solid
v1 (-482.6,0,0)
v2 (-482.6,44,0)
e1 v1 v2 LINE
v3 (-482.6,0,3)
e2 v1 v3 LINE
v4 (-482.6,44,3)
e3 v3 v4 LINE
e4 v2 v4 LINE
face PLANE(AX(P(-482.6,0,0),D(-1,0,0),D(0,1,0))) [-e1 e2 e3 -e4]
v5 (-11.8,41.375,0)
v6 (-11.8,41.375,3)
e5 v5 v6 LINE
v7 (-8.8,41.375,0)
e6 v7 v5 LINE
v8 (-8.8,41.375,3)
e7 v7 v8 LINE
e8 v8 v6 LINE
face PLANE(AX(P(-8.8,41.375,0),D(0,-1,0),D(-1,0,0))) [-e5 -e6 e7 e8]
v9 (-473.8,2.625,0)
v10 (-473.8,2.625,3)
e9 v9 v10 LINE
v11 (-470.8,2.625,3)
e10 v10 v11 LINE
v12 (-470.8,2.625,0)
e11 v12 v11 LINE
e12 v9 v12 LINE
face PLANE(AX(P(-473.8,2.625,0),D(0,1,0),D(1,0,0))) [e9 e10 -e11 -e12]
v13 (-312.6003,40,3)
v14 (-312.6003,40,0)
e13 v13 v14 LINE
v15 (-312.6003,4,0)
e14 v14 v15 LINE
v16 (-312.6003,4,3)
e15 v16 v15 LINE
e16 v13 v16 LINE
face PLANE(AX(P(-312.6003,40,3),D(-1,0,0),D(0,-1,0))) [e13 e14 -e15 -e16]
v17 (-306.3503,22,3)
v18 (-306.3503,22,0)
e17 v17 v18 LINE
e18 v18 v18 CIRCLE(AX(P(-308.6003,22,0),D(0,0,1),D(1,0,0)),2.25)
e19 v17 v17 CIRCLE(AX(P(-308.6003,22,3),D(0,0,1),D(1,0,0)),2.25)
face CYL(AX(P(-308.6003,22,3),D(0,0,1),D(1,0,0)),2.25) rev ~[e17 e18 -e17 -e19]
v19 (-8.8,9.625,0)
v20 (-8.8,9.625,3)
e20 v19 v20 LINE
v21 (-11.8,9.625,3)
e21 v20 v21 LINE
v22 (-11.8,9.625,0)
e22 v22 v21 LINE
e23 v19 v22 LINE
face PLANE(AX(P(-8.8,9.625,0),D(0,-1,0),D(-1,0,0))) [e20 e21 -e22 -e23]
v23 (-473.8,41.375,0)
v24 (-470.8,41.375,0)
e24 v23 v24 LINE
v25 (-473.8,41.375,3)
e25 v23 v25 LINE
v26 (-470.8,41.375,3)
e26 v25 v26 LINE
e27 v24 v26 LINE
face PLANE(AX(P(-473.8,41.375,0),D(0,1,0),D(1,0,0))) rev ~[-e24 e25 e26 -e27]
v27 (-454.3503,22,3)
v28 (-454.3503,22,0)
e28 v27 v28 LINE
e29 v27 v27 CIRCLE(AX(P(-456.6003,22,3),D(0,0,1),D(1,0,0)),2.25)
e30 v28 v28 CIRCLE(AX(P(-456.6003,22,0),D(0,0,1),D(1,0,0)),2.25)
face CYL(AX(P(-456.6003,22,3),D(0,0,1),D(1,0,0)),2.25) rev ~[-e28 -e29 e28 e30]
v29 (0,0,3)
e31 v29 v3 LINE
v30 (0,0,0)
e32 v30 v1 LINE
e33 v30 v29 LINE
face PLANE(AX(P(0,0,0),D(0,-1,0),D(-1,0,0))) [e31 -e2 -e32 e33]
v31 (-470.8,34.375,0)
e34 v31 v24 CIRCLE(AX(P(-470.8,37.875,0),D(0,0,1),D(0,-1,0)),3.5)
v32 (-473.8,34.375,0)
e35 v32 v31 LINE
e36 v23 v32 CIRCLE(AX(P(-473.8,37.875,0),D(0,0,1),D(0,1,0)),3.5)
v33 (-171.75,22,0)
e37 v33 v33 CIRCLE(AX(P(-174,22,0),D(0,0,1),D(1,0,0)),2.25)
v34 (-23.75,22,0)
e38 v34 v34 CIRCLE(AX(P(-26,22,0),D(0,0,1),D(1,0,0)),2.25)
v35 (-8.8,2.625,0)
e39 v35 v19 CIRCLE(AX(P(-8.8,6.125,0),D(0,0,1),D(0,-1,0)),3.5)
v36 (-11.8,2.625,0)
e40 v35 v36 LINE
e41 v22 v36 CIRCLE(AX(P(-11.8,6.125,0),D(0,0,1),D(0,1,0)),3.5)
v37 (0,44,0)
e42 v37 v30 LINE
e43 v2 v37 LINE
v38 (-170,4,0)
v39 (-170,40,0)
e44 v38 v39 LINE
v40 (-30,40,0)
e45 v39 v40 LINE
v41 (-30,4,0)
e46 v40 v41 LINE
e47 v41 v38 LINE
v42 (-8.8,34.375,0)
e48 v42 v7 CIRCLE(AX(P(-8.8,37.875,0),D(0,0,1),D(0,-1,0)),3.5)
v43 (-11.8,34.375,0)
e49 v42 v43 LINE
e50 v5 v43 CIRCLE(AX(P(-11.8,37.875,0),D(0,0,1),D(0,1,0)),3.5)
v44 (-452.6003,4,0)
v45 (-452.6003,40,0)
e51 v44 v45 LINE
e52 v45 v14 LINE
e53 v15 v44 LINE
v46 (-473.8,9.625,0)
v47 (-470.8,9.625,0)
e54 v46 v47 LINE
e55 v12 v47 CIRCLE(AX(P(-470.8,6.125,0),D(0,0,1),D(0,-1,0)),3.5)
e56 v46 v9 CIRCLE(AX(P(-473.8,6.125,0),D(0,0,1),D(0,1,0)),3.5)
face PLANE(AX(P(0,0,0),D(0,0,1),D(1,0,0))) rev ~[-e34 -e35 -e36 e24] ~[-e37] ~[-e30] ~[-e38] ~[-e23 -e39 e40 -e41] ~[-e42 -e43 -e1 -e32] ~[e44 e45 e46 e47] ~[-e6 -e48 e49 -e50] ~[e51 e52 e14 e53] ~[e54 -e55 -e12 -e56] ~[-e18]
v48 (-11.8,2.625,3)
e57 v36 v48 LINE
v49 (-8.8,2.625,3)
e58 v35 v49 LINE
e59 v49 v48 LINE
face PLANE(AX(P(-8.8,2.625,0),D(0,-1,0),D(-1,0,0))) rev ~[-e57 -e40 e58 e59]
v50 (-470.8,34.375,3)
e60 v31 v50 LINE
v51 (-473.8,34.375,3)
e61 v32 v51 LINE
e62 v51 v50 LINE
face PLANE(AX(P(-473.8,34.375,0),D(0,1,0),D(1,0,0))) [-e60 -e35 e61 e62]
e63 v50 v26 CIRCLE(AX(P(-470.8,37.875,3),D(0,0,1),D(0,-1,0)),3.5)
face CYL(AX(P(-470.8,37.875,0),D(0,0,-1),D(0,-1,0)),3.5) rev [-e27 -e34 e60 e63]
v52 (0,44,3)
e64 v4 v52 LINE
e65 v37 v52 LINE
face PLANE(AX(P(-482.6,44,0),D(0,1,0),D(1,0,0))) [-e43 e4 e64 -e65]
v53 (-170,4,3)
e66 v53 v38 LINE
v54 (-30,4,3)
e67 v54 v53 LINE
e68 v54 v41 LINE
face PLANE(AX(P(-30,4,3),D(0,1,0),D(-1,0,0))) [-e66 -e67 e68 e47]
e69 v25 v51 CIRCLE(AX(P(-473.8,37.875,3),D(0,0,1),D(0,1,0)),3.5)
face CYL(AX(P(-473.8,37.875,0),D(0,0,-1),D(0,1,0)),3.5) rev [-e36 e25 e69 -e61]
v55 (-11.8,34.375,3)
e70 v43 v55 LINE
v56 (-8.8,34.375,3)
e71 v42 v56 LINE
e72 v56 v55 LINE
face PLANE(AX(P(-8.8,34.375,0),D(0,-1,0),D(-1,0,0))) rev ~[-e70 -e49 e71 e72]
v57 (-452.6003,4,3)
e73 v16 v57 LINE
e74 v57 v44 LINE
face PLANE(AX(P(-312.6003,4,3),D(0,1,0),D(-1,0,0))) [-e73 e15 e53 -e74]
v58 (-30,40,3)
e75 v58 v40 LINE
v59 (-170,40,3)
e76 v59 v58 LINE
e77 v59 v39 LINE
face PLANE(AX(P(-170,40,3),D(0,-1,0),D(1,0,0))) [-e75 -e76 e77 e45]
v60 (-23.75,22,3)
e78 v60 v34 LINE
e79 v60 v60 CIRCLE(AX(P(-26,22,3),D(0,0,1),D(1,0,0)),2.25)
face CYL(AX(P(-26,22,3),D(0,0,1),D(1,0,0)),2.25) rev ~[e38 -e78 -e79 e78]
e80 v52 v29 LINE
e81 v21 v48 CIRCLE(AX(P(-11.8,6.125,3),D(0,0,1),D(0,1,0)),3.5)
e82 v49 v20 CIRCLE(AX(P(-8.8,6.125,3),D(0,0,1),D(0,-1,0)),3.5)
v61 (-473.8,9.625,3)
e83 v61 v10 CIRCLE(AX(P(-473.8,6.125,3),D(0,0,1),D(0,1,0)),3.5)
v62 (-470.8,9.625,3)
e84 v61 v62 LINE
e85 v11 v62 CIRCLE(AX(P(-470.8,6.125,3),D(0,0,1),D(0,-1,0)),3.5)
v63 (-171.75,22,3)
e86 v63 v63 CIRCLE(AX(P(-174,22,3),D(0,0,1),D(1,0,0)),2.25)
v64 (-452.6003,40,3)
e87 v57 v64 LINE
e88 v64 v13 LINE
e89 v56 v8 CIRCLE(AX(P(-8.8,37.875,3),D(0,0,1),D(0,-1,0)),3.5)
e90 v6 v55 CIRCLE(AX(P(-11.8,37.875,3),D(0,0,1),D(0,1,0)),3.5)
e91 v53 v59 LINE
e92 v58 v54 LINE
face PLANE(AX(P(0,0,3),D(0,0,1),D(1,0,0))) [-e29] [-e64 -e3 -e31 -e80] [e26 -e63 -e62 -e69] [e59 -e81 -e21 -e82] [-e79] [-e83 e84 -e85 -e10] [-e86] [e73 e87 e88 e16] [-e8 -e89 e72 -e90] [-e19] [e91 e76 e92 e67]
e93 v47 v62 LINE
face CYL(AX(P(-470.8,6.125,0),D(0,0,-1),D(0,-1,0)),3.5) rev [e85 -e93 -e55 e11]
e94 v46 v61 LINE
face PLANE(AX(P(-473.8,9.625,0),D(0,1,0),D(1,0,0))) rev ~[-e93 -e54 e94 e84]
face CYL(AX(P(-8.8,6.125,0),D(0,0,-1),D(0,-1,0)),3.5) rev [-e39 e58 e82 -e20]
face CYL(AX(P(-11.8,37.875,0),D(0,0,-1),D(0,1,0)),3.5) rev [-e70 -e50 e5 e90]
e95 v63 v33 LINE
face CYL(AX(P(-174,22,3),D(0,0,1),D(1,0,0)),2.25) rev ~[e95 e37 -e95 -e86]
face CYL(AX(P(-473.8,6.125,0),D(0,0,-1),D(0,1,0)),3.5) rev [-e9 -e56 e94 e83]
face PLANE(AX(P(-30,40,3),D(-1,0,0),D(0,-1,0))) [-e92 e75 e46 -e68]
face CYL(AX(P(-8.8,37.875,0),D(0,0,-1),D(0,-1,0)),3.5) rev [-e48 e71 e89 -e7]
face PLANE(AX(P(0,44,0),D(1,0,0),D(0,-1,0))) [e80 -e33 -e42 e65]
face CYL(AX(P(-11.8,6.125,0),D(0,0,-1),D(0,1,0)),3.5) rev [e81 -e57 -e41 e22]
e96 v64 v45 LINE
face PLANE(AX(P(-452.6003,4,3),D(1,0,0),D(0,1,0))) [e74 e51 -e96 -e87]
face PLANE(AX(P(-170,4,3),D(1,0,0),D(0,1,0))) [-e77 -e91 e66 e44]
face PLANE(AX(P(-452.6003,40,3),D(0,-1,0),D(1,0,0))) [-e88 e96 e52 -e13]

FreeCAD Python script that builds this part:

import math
import FreeCAD as App
import Part
import Sketcher

V = App.Vector


def add_polygon(sketch, points):
    """Adds a closed chain of lines whose ends are joined by coincident constraints."""
    first, n = sketch.GeometryCount, len(points)
    for a, b in zip(points, points[1:] + points[:1]):
        sketch.addGeometry(Part.LineSegment(App.Vector(*a, 0), App.Vector(*b, 0)), False)
    for i in range(n):
        sketch.addConstraint(Sketcher.Constraint("Coincident", first + i, 2, first + (i + 1) % n, 1))

doc = App.newDocument("Part")
body = doc.addObject("PartDesign::Body", "Body")

# Sketch on XY plane
sketch1 = body.newObject("Sketcher::SketchObject", "Sketch")
sketch1.AttachmentSupport = (doc.getObject("XY_Plane"), [""])
sketch1.MapMode = "FlatFace"
add_polygon(sketch1, [(-482.6, 0), (0, 0), (0, 44), (-482.6, 44)])  # lines 0-3
sketch1.addGeometry(Part.ArcOfCircle(Part.Circle(V(-473.8, 6.1, 0), V(0, 0, 1), 3.5), math.radians(90), math.radians(270)), False)  # 4
sketch1.addGeometry(Part.LineSegment(V(-473.8, 9.6, 0), V(-470.8, 9.6, 0)), False)  # 5
sketch1.addGeometry(Part.ArcOfCircle(Part.Circle(V(-470.8, 6.1, 0), V(0, 0, 1), 3.5), math.radians(-90), math.radians(90)), False)  # 6
sketch1.addGeometry(Part.LineSegment(V(-470.8, 2.6, 0), V(-473.8, 2.6, 0)), False)  # 7
sketch1.addGeometry(Part.ArcOfCircle(Part.Circle(V(-8.8, 6.1, 0), V(0, 0, 1), 3.5), math.radians(-90), math.radians(90)), False)  # 8
sketch1.addGeometry(Part.LineSegment(V(-8.8, 2.6, 0), V(-11.8, 2.6, 0)), False)  # 9
sketch1.addGeometry(Part.ArcOfCircle(Part.Circle(V(-11.8, 6.1, 0), V(0, 0, 1), 3.5), math.radians(90), math.radians(270)), False)  # 10
sketch1.addGeometry(Part.LineSegment(V(-11.8, 9.6, 0), V(-8.8, 9.6, 0)), False)  # 11
sketch1.addGeometry(Part.ArcOfCircle(Part.Circle(V(-473.8, 37.9, 0), V(0, 0, 1), 3.5), math.radians(90), math.radians(270)), False)  # 12
sketch1.addGeometry(Part.LineSegment(V(-473.8, 41.4, 0), V(-470.8, 41.4, 0)), False)  # 13
sketch1.addGeometry(Part.ArcOfCircle(Part.Circle(V(-470.8, 37.9, 0), V(0, 0, 1), 3.5), math.radians(-90), math.radians(90)), False)  # 14
sketch1.addGeometry(Part.LineSegment(V(-470.8, 34.4, 0), V(-473.8, 34.4, 0)), False)  # 15
sketch1.addGeometry(Part.ArcOfCircle(Part.Circle(V(-8.8, 37.9, 0), V(0, 0, 1), 3.5), math.radians(-90), math.radians(90)), False)  # 16
sketch1.addGeometry(Part.LineSegment(V(-8.8, 34.4, 0), V(-11.8, 34.4, 0)), False)  # 17
sketch1.addGeometry(Part.ArcOfCircle(Part.Circle(V(-11.8, 37.9, 0), V(0, 0, 1), 3.5), math.radians(90), math.radians(270)), False)  # 18
sketch1.addGeometry(Part.LineSegment(V(-11.8, 41.4, 0), V(-8.8, 41.4, 0)), False)  # 19
sketch1.addConstraint(Sketcher.Constraint("Tangent", 4, 1, 5, 1))
sketch1.addConstraint(Sketcher.Constraint("Tangent", 5, 2, 6, 2))
sketch1.addConstraint(Sketcher.Constraint("Tangent", 6, 1, 7, 1))
sketch1.addConstraint(Sketcher.Constraint("Tangent", 7, 2, 4, 2))
sketch1.addConstraint(Sketcher.Constraint("Tangent", 8, 1, 9, 1))
sketch1.addConstraint(Sketcher.Constraint("Tangent", 9, 2, 10, 2))
sketch1.addConstraint(Sketcher.Constraint("Tangent", 10, 1, 11, 1))
sketch1.addConstraint(Sketcher.Constraint("Tangent", 11, 2, 8, 2))
sketch1.addConstraint(Sketcher.Constraint("Tangent", 12, 1, 13, 1))
sketch1.addConstraint(Sketcher.Constraint("Tangent", 13, 2, 14, 2))
sketch1.addConstraint(Sketcher.Constraint("Tangent", 14, 1, 15, 1))
sketch1.addConstraint(Sketcher.Constraint("Tangent", 15, 2, 12, 2))
sketch1.addConstraint(Sketcher.Constraint("Tangent", 16, 1, 17, 1))
sketch1.addConstraint(Sketcher.Constraint("Tangent", 17, 2, 18, 2))
sketch1.addConstraint(Sketcher.Constraint("Tangent", 18, 1, 19, 1))
sketch1.addConstraint(Sketcher.Constraint("Tangent", 19, 2, 16, 2))
sketch1.addConstraint(Sketcher.Constraint("Horizontal", 0))
sketch1.addConstraint(Sketcher.Constraint("Vertical", 1))
sketch1.addConstraint(Sketcher.Constraint("Horizontal", 2))
sketch1.addConstraint(Sketcher.Constraint("Vertical", 3))
sketch1.addConstraint(Sketcher.Constraint("Horizontal", 5))
sketch1.addConstraint(Sketcher.Constraint("Horizontal", 7))
sketch1.addConstraint(Sketcher.Constraint("Horizontal", 9))
sketch1.addConstraint(Sketcher.Constraint("Horizontal", 11))
sketch1.addConstraint(Sketcher.Constraint("Horizontal", 13))
sketch1.addConstraint(Sketcher.Constraint("Horizontal", 15))
sketch1.addConstraint(Sketcher.Constraint("Horizontal", 17))
sketch1.addConstraint(Sketcher.Constraint("Horizontal", 19))
sketch1.addConstraint(Sketcher.Constraint("Coincident", 0, 2, -1, 1))
sketch1.addConstraint(Sketcher.Constraint("Equal", 6, 8))
sketch1.addConstraint(Sketcher.Constraint("Equal", 10, 12))
sketch1.addConstraint(Sketcher.Constraint("Equal", 14, 16))
sketch1.addConstraint(Sketcher.Constraint("Horizontal", 6, 3, 8, 3))
sketch1.addConstraint(Sketcher.Constraint("Horizontal", 14, 3, 16, 3))
sketch1.addConstraint(Sketcher.Constraint("Vertical", 4, 3, 12, 3))
sketch1.addConstraint(Sketcher.Constraint("Vertical", 6, 3, 14, 3))
sketch1.addConstraint(Sketcher.Constraint("Vertical", 8, 3, 16, 3))
sketch1.addConstraint(Sketcher.Constraint("Vertical", 10, 3, 18, 3))
sketch1.addConstraint(Sketcher.Constraint("Equal", 7, 9))
sketch1.addConstraint(Sketcher.Constraint("Radius", 4, 3.5))
sketch1.addConstraint(Sketcher.Constraint("DistanceX", 5, 1, 5, 2, 3.0))
sketch1.addConstraint(Sketcher.Constraint("DistanceY", 1, 1, 1, 2, 44.0))
sketch1.addConstraint(Sketcher.Constraint("DistanceX", 0, 1, 0, 2, 482.6))
sketch1.addConstraint(Sketcher.Constraint("DistanceX", 4, 3, 8, 3, 465.0))
sketch1.addConstraint(Sketcher.Constraint("DistanceX", 8, 3, -1, 1, 8.8))
sketch1.addConstraint(Sketcher.Constraint("DistanceY", 4, 3, 12, 3, 31.75))
sketch1.addConstraint(Sketcher.Constraint("DistanceY", -1, 1, 4, 3, 6.125))
pad1 = body.newObject("PartDesign::Pad", "Pad")
pad1.Profile = sketch1
pad1.Length = 3

# Sketch on XY plane
sketch2 = body.newObject("Sketcher::SketchObject", "Sketch001")
sketch2.AttachmentSupport = (doc.getObject("XY_Plane"), [""])
sketch2.MapMode = "FlatFace"
sketch2.AttachmentOffset = App.Placement(V(0, 0, 3), App.Rotation())
add_polygon(sketch2, [(-170, 4), (-30, 4), (-30, 40), (-170, 40)])  # lines 0-3
add_polygon(sketch2, [(-313, 40), (-453, 40), (-453, 4), (-313, 4)])  # lines 4-7
sketch2.addConstraint(Sketcher.Constraint("Horizontal", 0))
sketch2.addConstraint(Sketcher.Constraint("Vertical", 1))
sketch2.addConstraint(Sketcher.Constraint("Horizontal", 2))
sketch2.addConstraint(Sketcher.Constraint("Vertical", 3))
sketch2.addConstraint(Sketcher.Constraint("Horizontal", 4))
sketch2.addConstraint(Sketcher.Constraint("Vertical", 5))
sketch2.addConstraint(Sketcher.Constraint("Horizontal", 6))
sketch2.addConstraint(Sketcher.Constraint("Vertical", 7))
sketch2.addConstraint(Sketcher.Constraint("Horizontal", 2, 2, 4, 2))
sketch2.addConstraint(Sketcher.Constraint("Horizontal", 3, 2, 5, 2))
sketch2.addConstraint(Sketcher.Constraint("Equal", 2, 4))
sketch2.addConstraint(Sketcher.Constraint("DistanceX", 0, 1, 0, 2, 140.0))
sketch2.addConstraint(Sketcher.Constraint("DistanceY", 1, 1, 1, 2, 36.0))
sketch2.addConstraint(Sketcher.Constraint("DistanceX", 0, 2, -1, 1, 30.0))
sketch2.addConstraint(Sketcher.Constraint("DistanceY", -1, 1, 0, 2, 4.0))
sketch2.addConstraint(Sketcher.Constraint("DistanceX", 4, 2, -1, 1, 452.6003))
pocket1 = body.newObject("PartDesign::Pocket", "Pocket")
pocket1.Profile = sketch2
pocket1.Length = 5

# Sketch on XY plane
sketch3 = body.newObject("Sketcher::SketchObject", "Sketch002")
sketch3.AttachmentSupport = (doc.getObject("XY_Plane"), [""])
sketch3.MapMode = "FlatFace"
sketch3.AttachmentOffset = App.Placement(V(0, 0, 3), App.Rotation())
sketch3.addGeometry(Part.Circle(V(-26, 22, 0), V(0, 0, 1), 2.2), False)
sketch3.addGeometry(Part.Circle(V(-174, 22, 0), V(0, 0, 1), 2.2), False)
sketch3.addGeometry(Part.Circle(V(-308.6, 22, 0), V(0, 0, 1), 2.2), False)
sketch3.addGeometry(Part.Circle(V(-456.6, 22, 0), V(0, 0, 1), 2.2), False)
sketch3.addConstraint(Sketcher.Constraint("Equal", 0, 1))
sketch3.addConstraint(Sketcher.Constraint("Equal", 1, 2))
sketch3.addConstraint(Sketcher.Constraint("Equal", 2, 3))
sketch3.addConstraint(Sketcher.Constraint("Horizontal", 0, 3, 1, 3))
sketch3.addConstraint(Sketcher.Constraint("Horizontal", 1, 3, 2, 3))
sketch3.addConstraint(Sketcher.Constraint("Horizontal", 2, 3, 3, 3))
sketch3.addConstraint(Sketcher.Constraint("Diameter", 0, 4.5))
sketch3.addConstraint(Sketcher.Constraint("DistanceX", 0, 3, -1, 1, 26.0))
sketch3.addConstraint(Sketcher.Constraint("DistanceY", -1, 1, 0, 3, 22.0))
sketch3.addConstraint(Sketcher.Constraint("DistanceX", 1, 3, -1, 1, 174.0))
sketch3.addConstraint(Sketcher.Constraint("DistanceX", 3, 3, 2, 3, 148.0))
sketch3.addConstraint(Sketcher.Constraint("DistanceX", 2, 3, -1, 1, 308.6003))
pocket2 = body.newObject("PartDesign::Pocket", "Pocket001")
pocket2.Profile = sketch3
pocket2.Type = "ThroughAll"

doc.recompute()
